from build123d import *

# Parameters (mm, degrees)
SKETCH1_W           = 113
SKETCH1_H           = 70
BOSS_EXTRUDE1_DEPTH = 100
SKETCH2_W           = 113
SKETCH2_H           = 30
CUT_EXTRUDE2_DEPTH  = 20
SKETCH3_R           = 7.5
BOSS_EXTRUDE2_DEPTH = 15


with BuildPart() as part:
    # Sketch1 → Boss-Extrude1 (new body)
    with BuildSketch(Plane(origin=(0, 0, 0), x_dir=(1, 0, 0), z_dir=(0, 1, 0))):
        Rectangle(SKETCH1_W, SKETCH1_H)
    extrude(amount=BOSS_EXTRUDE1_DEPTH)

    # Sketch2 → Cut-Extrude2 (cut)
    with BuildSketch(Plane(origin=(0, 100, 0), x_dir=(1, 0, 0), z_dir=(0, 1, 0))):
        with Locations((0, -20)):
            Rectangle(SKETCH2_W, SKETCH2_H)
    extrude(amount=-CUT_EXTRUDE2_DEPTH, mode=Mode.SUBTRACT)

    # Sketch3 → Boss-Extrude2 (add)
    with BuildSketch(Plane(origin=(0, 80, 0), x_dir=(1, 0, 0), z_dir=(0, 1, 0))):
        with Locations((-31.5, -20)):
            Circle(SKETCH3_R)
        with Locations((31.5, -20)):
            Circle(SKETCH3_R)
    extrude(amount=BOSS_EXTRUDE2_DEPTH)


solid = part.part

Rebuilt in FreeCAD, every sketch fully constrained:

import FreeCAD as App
import Part
import Sketcher
Q = App.Units.Quantity


def add_polygon(sketch, points):
    """Adds a closed chain of lines whose ends are joined by coincident constraints."""
    first, n = sketch.GeometryCount, len(points)
    for a, b in zip(points, points[1:] + points[:1]):
        sketch.addGeometry(Part.LineSegment(App.Vector(*a, 0), App.Vector(*b, 0)), False)
    for i in range(n):
        sketch.addConstraint(Sketcher.Constraint("Coincident", first + i, 2, first + (i + 1) % n, 1))

doc = App.newDocument("Part")
body = doc.addObject("PartDesign::Body", "Body")

sketch1 = doc.addObject("Sketcher::SketchObject", "Sketch")
body.addObject(sketch1)
sketch1.AttachmentSupport = (doc.XZ_Plane, [""])
sketch1.MapMode = "FlatFace"
add_polygon(sketch1, [(-56, -35), (-56, 35), (56, 35), (56, -35)])
sketch1.addConstraint([
    Sketcher.Constraint("Vertical", 0),
    Sketcher.Constraint("Horizontal", 1),
    Sketcher.Constraint("Vertical", 2),
    Sketcher.Constraint("Horizontal", 3),
    Sketcher.Constraint("Symmetric", 0, 2, 2, 2, -1, 1),
    Sketcher.Constraint("DistanceX", 1, 1, 1, 2, Q("113 mm")),
    Sketcher.Constraint("DistanceY", 0, 1, 0, 2, Q("70 mm")),
])
pad1 = doc.addObject("PartDesign::Pad", "Pad")
body.addObject(pad1)
pad1.Profile = sketch1
pad1.Length = 100
pad1.Reversed = True

sketch2 = doc.addObject("Sketcher::SketchObject", "Sketch001")
body.addObject(sketch2)
sketch2.AttachmentSupport = (doc.XZ_Plane, [""])
sketch2.MapMode = "FlatFace"
sketch2.AttachmentOffset = App.Placement(App.Vector(0, 0, -100), App.Rotation())
add_polygon(sketch2, [(-56, 5), (-56, 35), (56, 35), (56, 5)])
sketch2.addConstraint([
    Sketcher.Constraint("Vertical", 0),
    Sketcher.Constraint("Horizontal", 1),
    Sketcher.Constraint("Vertical", 2),
    Sketcher.Constraint("Horizontal", 3),
    Sketcher.Constraint("DistanceX", 1, 1, 1, 2, Q("113 mm")),
    Sketcher.Constraint("DistanceY", 0, 1, 0, 2, Q("30 mm")),
    Sketcher.Constraint("DistanceY", -1, 1, 0, 2, Q("35 mm")),
    Sketcher.Constraint("DistanceX", 0, 2, -1, 1, Q("56.5 mm")),
])
pocket1 = doc.addObject("PartDesign::Pocket", "Pocket")
body.addObject(pocket1)
pocket1.Profile = sketch2
pocket1.Length = 20
pocket1.Reversed = True

sketch3 = doc.addObject("Sketcher::SketchObject", "Sketch002")
body.addObject(sketch3)
sketch3.AttachmentSupport = (doc.XZ_Plane, [""])
sketch3.MapMode = "FlatFace"
sketch3.AttachmentOffset = App.Placement(App.Vector(0, 0, -80), App.Rotation())
sketch3.addGeometry([
    Part.Circle(App.Vector(-32, 20, 0), App.Vector(0, 0, 1), 8),
    Part.Circle(App.Vector(32, 20, 0), App.Vector(0, 0, 1), 8),
], False)
sketch3.addConstraint([
    Sketcher.Constraint("Equal", 0, 1),
    Sketcher.Constraint("Symmetric", 0, 3, 1, 3, -2),
    Sketcher.Constraint("Diameter", 0, Q("15 mm")),
    Sketcher.Constraint("DistanceY", -1, 1, 0, 3, Q("20 mm")),
    Sketcher.Constraint("DistanceX", 0, 3, 1, 3, Q("63 mm")),
])
pad2 = doc.addObject("PartDesign::Pad", "Pad001")
body.addObject(pad2)
pad2.Profile = sketch3
pad2.Length = 15
pad2.Reversed = True

doc.recompute()
